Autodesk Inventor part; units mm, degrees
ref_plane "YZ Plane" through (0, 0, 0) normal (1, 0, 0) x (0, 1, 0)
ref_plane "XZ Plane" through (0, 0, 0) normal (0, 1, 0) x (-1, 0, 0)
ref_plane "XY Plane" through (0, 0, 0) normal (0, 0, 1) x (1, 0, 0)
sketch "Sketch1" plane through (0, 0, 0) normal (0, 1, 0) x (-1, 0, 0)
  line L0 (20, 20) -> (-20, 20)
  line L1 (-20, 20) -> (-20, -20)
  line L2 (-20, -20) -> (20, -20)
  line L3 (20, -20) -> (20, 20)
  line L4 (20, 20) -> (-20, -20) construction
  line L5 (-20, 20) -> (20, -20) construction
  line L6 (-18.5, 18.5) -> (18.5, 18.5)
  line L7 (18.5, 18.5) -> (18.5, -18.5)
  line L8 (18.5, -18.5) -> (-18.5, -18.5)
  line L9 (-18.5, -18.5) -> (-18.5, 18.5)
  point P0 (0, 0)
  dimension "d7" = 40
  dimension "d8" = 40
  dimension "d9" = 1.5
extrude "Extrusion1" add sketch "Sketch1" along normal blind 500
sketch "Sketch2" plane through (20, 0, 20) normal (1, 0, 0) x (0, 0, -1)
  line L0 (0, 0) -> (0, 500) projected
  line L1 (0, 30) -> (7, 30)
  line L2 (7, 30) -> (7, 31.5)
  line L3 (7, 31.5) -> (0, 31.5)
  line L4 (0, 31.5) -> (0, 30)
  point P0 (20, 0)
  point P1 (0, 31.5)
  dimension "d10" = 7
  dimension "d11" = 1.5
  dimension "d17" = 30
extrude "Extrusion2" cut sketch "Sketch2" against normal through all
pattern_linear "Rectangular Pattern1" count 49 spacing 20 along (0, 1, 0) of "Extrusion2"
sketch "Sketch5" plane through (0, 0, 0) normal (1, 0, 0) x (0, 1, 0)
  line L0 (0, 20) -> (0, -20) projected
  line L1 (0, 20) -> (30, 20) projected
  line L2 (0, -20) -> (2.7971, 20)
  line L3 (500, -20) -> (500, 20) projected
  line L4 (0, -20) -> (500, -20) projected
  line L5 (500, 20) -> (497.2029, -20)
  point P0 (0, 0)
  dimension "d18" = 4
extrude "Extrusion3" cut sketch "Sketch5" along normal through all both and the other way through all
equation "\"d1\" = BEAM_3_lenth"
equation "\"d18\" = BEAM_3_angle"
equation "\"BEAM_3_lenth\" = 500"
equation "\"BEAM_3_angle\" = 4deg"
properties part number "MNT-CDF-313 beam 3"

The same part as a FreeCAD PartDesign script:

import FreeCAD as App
import Part
import Sketcher
from FreeCAD import Vector
Q = App.Units.Quantity

doc = App.newDocument("Part")
params = doc.addObject("Spreadsheet::Sheet", "Params")
for row, (alias, value) in enumerate([
    ("sketch1_width", "40 mm"),
    ("pad1_length", "500 mm"),
    ("sketch2_height", "7 mm"),
    ("sketch2_width", "1.5 mm"),
    ("linearpattern_pitch", "20 mm"),
    ("sketch3_height", "40 mm"),
], start=1):
    params.set(f"A{row}", alias)
    params.set(f"B{row}", "=" + value)
    params.setAlias(f"B{row}", alias)

body = doc.addObject("PartDesign::Body", "Body")

# Sketch on XZ plane
sketch1 = body.newObject("Sketcher::SketchObject", "Sketch")
sketch1.AttachmentSupport = (doc.getObject("XZ_Plane"), [""])
sketch1.MapMode = "FlatFace"
sketch1.addGeometry(Part.LineSegment(Vector(-20, -20, 0), Vector(-20, 20, 0)), False)
sketch1.addGeometry(Part.LineSegment(Vector(-20, 20, 0), Vector(20, 20, 0)), False)
sketch1.addGeometry(Part.LineSegment(Vector(20, 20, 0), Vector(20, -20, 0)), False)
sketch1.addGeometry(Part.LineSegment(Vector(20, -20, 0), Vector(-20, -20, 0)), False)
sketch1.addGeometry(Part.LineSegment(Vector(18, -18, 0), Vector(18, 18, 0)), False)
sketch1.addGeometry(Part.LineSegment(Vector(18, 18, 0), Vector(-18, 18, 0)), False)
sketch1.addGeometry(Part.LineSegment(Vector(-18, 18, 0), Vector(-18, -18, 0)), False)
sketch1.addGeometry(Part.LineSegment(Vector(-18, -18, 0), Vector(18, -18, 0)), False)
sketch1.addConstraint(Sketcher.Constraint("Coincident", 0, 2, 1, 1))
sketch1.addConstraint(Sketcher.Constraint("Coincident", 1, 2, 2, 1))
sketch1.addConstraint(Sketcher.Constraint("Coincident", 2, 2, 3, 1))
sketch1.addConstraint(Sketcher.Constraint("Coincident", 3, 2, 0, 1))
sketch1.addConstraint(Sketcher.Constraint("Coincident", 4, 2, 5, 1))
sketch1.addConstraint(Sketcher.Constraint("Coincident", 5, 2, 6, 1))
sketch1.addConstraint(Sketcher.Constraint("Coincident", 6, 2, 7, 1))
sketch1.addConstraint(Sketcher.Constraint("Coincident", 7, 2, 4, 1))
sketch1.addConstraint(Sketcher.Constraint("Vertical", 0))
sketch1.addConstraint(Sketcher.Constraint("Horizontal", 1))
sketch1.addConstraint(Sketcher.Constraint("Vertical", 2))
sketch1.addConstraint(Sketcher.Constraint("Horizontal", 3))
sketch1.addConstraint(Sketcher.Constraint("Vertical", 4))
sketch1.addConstraint(Sketcher.Constraint("Horizontal", 5))
sketch1.addConstraint(Sketcher.Constraint("Vertical", 6))
sketch1.addConstraint(Sketcher.Constraint("Horizontal", 7))
sketch1.addConstraint(Sketcher.Constraint("Symmetric", 0, 2, 2, 2, -1, 1))
sketch1.addConstraint(Sketcher.Constraint("Symmetric", 4, 2, 6, 2, -1, 1))
sketch1.addConstraint(Sketcher.Constraint("Equal", 3, 0))
sketch1.addConstraint(Sketcher.Constraint("Equal", 7, 4))
sketch1.addConstraint(Sketcher.Constraint("DistanceX", 1, 1, 1, 2, Q("40 mm")))
sketch1.addConstraint(Sketcher.Constraint("DistanceX", 4, 2, 1, 2, Q("1.5 mm")))
sketch1.setExpression("Constraints[20]", "Params.sketch1_width")
pad1 = body.newObject("PartDesign::Pad", "Pad")
pad1.Profile = sketch1
pad1.setExpression("Length", "Params.pad1_length")
pad1.Reversed = True

# Sketch on YZ plane
sketch2 = body.newObject("Sketcher::SketchObject", "Sketch001")
sketch2.AttachmentSupport = (doc.getObject("YZ_Plane"), [""])
sketch2.MapMode = "FlatFace"
sketch2.AttachmentOffset = App.Placement(Vector(0, 0, 20), App.Rotation())
sketch2.addGeometry(Part.LineSegment(Vector(31.5, 20, 0), Vector(30, 20, 0)), False)
sketch2.addGeometry(Part.LineSegment(Vector(30, 20, 0), Vector(30, 13, 0)), False)
sketch2.addGeometry(Part.LineSegment(Vector(30, 13, 0), Vector(31.5, 13, 0)), False)
sketch2.addGeometry(Part.LineSegment(Vector(31.5, 13, 0), Vector(31.5, 20, 0)), False)
sketch2.addConstraint(Sketcher.Constraint("Coincident", 0, 2, 1, 1))
sketch2.addConstraint(Sketcher.Constraint("Coincident", 1, 2, 2, 1))
sketch2.addConstraint(Sketcher.Constraint("Coincident", 2, 2, 3, 1))
sketch2.addConstraint(Sketcher.Constraint("Coincident", 3, 2, 0, 1))
sketch2.addConstraint(Sketcher.Constraint("Horizontal", 0))
sketch2.addConstraint(Sketcher.Constraint("Vertical", 1))
sketch2.addConstraint(Sketcher.Constraint("Horizontal", 2))
sketch2.addConstraint(Sketcher.Constraint("Vertical", 3))
sketch2.addConstraint(Sketcher.Constraint("DistanceY", 1, 2, 1, 1, Q("7 mm")))
sketch2.addConstraint(Sketcher.Constraint("DistanceX", 0, 2, 0, 1, Q("1.5 mm")))
sketch2.addConstraint(Sketcher.Constraint("DistanceX", -1, 1, 0, 2, Q("30 mm")))
sketch2.addConstraint(Sketcher.Constraint("DistanceY", -1, 1, 0, 2, Q("20 mm")))
sketch2.setExpression("Constraints[8]", "Params.sketch2_height")
sketch2.setExpression("Constraints[9]", "Params.sketch2_width")
pocket1 = body.newObject("PartDesign::Pocket", "Pocket")
pocket1.Profile = sketch2
pocket1.Type = "ThroughAll"
doc.recompute()

linearpattern = body.newObject("PartDesign::LinearPattern", "LinearPattern")
linearpattern.Originals = [pocket1]
linearpattern.Direction = (doc.getObject("Y_Axis"), [""])
linearpattern.Mode = "offset"
linearpattern.setExpression("Offset", "Params.linearpattern_pitch")
linearpattern.Occurrences = 49
body.Tip = linearpattern

# Sketch on YZ plane
sketch3 = body.newObject("Sketcher::SketchObject", "Sketch002")
sketch3.AttachmentSupport = (doc.getObject("YZ_Plane"), [""])
sketch3.MapMode = "FlatFace"
sketch3.addGeometry(Part.LineSegment(Vector(2.8, 20, 0), Vector(0, 20, 0)), False)
sketch3.addGeometry(Part.LineSegment(Vector(0, 20, 0), Vector(0, -20, 0)), False)
sketch3.addGeometry(Part.LineSegment(Vector(0, -20, 0), Vector(2.8, 20, 0)), False)
sketch3.addGeometry(Part.LineSegment(Vector(500, 20, 0), Vector(497.2, -20, 0)), False)
sketch3.addGeometry(Part.LineSegment(Vector(497.2, -20, 0), Vector(500, -20, 0)), False)
sketch3.addGeometry(Part.LineSegment(Vector(500, -20, 0), Vector(500, 20, 0)), False)
sketch3.addConstraint(Sketcher.Constraint("Coincident", 0, 2, 1, 1))
sketch3.addConstraint(Sketcher.Constraint("Coincident", 1, 2, 2, 1))
sketch3.addConstraint(Sketcher.Constraint("Coincident", 2, 2, 0, 1))
sketch3.addConstraint(Sketcher.Constraint("Coincident", 3, 2, 4, 1))
sketch3.addConstraint(Sketcher.Constraint("Coincident", 4, 2, 5, 1))
sketch3.addConstraint(Sketcher.Constraint("Coincident", 5, 2, 3, 1))
sketch3.addConstraint(Sketcher.Constraint("Horizontal", 0))
sketch3.addConstraint(Sketcher.Constraint("Vertical", 1))
sketch3.addConstraint(Sketcher.Constraint("Horizontal", 4))
sketch3.addConstraint(Sketcher.Constraint("Vertical", 5))
sketch3.addConstraint(Sketcher.Constraint("Symmetric", 0, 2, 1, 2, -1, 1))
sketch3.addConstraint(Sketcher.Constraint("Parallel", 2, 3))
sketch3.addConstraint(Sketcher.Constraint("Horizontal", 1, 2, 3, 2))
sketch3.addConstraint(Sketcher.Constraint("Horizontal", 2, 2, 5, 2))
sketch3.addConstraint(Sketcher.Constraint("DistanceY", 1, 2, 1, 1, Q("40 mm")))
sketch3.addConstraint(Sketcher.Constraint("Angle", 2, Q("86 deg")))
sketch3.addConstraint(Sketcher.Constraint("DistanceX", -1, 1, 4, 2, Q("500 mm")))
sketch3.setExpression("Constraints[14]", "Params.sketch3_height")
pocket2 = body.newObject("PartDesign::Pocket", "Pocket001")
pocket2.Profile = sketch3
pocket2.Type = "ThroughAll"
pocket2.Midplane = True

doc.recompute()
